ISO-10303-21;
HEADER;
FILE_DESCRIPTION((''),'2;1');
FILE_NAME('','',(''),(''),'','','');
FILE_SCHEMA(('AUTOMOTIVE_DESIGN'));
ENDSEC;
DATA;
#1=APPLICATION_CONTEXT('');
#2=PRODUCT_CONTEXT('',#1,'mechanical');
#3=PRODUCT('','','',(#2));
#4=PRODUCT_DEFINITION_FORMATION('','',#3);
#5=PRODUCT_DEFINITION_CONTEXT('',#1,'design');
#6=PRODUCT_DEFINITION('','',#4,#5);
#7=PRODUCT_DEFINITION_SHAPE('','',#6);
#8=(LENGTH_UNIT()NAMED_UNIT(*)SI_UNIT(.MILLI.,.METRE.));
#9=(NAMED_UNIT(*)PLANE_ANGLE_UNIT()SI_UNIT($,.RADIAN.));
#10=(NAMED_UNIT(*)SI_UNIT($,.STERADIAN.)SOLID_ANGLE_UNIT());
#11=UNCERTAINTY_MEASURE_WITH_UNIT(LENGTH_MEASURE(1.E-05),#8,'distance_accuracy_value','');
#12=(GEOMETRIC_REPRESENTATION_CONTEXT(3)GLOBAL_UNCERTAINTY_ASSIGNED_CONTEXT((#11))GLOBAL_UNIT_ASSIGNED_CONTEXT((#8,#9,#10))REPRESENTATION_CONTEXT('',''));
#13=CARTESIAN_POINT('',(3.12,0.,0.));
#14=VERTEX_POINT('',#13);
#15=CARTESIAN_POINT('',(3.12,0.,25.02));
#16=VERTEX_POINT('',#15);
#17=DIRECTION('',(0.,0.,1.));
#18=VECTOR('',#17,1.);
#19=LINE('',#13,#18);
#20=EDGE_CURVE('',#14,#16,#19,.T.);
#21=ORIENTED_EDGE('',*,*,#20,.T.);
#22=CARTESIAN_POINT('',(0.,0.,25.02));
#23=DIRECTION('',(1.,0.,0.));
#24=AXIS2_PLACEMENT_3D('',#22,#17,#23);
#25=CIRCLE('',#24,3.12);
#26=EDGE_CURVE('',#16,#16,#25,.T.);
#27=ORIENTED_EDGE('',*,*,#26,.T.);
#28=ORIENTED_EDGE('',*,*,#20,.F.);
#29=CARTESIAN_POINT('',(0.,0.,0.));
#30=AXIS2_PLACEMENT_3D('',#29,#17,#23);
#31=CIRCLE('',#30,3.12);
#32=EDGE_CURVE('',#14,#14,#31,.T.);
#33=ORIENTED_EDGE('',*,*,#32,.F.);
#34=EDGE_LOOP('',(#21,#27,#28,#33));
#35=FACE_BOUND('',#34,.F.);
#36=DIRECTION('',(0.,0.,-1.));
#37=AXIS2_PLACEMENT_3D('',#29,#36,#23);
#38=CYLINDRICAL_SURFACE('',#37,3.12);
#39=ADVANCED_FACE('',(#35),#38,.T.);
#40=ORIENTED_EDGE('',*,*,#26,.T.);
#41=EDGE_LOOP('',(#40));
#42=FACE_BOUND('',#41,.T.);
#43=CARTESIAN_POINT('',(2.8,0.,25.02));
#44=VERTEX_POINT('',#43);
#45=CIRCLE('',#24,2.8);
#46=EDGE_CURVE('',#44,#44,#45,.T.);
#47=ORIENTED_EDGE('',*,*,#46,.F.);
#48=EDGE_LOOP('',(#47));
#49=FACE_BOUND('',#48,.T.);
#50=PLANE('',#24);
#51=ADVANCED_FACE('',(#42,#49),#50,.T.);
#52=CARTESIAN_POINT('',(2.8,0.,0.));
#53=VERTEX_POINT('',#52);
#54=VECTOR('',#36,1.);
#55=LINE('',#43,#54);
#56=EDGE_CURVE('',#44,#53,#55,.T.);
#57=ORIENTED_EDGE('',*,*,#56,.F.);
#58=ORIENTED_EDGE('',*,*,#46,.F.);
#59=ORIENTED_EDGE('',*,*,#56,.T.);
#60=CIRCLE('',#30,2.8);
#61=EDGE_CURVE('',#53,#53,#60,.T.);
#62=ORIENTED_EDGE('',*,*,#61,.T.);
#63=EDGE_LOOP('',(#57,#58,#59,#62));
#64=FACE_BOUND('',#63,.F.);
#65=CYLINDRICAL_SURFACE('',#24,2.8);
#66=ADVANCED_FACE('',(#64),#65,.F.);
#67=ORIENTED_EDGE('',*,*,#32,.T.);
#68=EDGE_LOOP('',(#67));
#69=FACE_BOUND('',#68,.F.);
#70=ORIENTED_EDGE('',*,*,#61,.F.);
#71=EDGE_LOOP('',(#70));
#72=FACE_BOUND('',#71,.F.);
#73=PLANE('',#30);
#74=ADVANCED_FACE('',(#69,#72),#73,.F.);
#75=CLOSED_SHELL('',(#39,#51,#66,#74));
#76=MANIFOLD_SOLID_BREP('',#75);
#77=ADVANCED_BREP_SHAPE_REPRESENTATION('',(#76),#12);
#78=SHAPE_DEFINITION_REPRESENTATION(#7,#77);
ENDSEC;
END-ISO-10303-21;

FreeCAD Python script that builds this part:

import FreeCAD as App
import Part
import Sketcher

V = App.Vector
Q = App.Units.Quantity

doc = App.newDocument("Part")
body = doc.addObject("PartDesign::Body", "Body")

# Sketch on XY plane
sketch1 = body.newObject("Sketcher::SketchObject", "Sketch")
sketch1.AttachmentSupport = (doc.getObject("XY_Plane"), [""])
sketch1.MapMode = "FlatFace"
sketch1.addGeometry(Part.Circle(V(0, 0, 0), V(0, 0, 1), 3.1), False)
sketch1.addConstraint([
    Sketcher.Constraint("Coincident", 0, 3, -1, 1),
    Sketcher.Constraint("Diameter", 0, Q("6.24 mm")),
])
pad1 = body.newObject("PartDesign::Pad", "Pad")
pad1.Profile = sketch1
pad1.Length = 25.02

# Sketch on XY plane
sketch2 = body.newObject("Sketcher::SketchObject", "Sketch001")
sketch2.AttachmentSupport = (doc.getObject("XY_Plane"), [""])
sketch2.MapMode = "FlatFace"
sketch2.AttachmentOffset = App.Placement(V(0, 0, 25.02), App.Rotation())
sketch2.addGeometry(Part.Circle(V(0, 0, 0), V(0, 0, 1), 2.8), False)
sketch2.addConstraint([
    Sketcher.Constraint("Coincident", 0, 3, -1, 1),
    Sketcher.Constraint("Diameter", 0, Q("5.6 mm")),
])
pocket1 = body.newObject("PartDesign::Pocket", "Pocket")
pocket1.Profile = sketch2
pocket1.Type = "ThroughAll"

doc.recompute()
